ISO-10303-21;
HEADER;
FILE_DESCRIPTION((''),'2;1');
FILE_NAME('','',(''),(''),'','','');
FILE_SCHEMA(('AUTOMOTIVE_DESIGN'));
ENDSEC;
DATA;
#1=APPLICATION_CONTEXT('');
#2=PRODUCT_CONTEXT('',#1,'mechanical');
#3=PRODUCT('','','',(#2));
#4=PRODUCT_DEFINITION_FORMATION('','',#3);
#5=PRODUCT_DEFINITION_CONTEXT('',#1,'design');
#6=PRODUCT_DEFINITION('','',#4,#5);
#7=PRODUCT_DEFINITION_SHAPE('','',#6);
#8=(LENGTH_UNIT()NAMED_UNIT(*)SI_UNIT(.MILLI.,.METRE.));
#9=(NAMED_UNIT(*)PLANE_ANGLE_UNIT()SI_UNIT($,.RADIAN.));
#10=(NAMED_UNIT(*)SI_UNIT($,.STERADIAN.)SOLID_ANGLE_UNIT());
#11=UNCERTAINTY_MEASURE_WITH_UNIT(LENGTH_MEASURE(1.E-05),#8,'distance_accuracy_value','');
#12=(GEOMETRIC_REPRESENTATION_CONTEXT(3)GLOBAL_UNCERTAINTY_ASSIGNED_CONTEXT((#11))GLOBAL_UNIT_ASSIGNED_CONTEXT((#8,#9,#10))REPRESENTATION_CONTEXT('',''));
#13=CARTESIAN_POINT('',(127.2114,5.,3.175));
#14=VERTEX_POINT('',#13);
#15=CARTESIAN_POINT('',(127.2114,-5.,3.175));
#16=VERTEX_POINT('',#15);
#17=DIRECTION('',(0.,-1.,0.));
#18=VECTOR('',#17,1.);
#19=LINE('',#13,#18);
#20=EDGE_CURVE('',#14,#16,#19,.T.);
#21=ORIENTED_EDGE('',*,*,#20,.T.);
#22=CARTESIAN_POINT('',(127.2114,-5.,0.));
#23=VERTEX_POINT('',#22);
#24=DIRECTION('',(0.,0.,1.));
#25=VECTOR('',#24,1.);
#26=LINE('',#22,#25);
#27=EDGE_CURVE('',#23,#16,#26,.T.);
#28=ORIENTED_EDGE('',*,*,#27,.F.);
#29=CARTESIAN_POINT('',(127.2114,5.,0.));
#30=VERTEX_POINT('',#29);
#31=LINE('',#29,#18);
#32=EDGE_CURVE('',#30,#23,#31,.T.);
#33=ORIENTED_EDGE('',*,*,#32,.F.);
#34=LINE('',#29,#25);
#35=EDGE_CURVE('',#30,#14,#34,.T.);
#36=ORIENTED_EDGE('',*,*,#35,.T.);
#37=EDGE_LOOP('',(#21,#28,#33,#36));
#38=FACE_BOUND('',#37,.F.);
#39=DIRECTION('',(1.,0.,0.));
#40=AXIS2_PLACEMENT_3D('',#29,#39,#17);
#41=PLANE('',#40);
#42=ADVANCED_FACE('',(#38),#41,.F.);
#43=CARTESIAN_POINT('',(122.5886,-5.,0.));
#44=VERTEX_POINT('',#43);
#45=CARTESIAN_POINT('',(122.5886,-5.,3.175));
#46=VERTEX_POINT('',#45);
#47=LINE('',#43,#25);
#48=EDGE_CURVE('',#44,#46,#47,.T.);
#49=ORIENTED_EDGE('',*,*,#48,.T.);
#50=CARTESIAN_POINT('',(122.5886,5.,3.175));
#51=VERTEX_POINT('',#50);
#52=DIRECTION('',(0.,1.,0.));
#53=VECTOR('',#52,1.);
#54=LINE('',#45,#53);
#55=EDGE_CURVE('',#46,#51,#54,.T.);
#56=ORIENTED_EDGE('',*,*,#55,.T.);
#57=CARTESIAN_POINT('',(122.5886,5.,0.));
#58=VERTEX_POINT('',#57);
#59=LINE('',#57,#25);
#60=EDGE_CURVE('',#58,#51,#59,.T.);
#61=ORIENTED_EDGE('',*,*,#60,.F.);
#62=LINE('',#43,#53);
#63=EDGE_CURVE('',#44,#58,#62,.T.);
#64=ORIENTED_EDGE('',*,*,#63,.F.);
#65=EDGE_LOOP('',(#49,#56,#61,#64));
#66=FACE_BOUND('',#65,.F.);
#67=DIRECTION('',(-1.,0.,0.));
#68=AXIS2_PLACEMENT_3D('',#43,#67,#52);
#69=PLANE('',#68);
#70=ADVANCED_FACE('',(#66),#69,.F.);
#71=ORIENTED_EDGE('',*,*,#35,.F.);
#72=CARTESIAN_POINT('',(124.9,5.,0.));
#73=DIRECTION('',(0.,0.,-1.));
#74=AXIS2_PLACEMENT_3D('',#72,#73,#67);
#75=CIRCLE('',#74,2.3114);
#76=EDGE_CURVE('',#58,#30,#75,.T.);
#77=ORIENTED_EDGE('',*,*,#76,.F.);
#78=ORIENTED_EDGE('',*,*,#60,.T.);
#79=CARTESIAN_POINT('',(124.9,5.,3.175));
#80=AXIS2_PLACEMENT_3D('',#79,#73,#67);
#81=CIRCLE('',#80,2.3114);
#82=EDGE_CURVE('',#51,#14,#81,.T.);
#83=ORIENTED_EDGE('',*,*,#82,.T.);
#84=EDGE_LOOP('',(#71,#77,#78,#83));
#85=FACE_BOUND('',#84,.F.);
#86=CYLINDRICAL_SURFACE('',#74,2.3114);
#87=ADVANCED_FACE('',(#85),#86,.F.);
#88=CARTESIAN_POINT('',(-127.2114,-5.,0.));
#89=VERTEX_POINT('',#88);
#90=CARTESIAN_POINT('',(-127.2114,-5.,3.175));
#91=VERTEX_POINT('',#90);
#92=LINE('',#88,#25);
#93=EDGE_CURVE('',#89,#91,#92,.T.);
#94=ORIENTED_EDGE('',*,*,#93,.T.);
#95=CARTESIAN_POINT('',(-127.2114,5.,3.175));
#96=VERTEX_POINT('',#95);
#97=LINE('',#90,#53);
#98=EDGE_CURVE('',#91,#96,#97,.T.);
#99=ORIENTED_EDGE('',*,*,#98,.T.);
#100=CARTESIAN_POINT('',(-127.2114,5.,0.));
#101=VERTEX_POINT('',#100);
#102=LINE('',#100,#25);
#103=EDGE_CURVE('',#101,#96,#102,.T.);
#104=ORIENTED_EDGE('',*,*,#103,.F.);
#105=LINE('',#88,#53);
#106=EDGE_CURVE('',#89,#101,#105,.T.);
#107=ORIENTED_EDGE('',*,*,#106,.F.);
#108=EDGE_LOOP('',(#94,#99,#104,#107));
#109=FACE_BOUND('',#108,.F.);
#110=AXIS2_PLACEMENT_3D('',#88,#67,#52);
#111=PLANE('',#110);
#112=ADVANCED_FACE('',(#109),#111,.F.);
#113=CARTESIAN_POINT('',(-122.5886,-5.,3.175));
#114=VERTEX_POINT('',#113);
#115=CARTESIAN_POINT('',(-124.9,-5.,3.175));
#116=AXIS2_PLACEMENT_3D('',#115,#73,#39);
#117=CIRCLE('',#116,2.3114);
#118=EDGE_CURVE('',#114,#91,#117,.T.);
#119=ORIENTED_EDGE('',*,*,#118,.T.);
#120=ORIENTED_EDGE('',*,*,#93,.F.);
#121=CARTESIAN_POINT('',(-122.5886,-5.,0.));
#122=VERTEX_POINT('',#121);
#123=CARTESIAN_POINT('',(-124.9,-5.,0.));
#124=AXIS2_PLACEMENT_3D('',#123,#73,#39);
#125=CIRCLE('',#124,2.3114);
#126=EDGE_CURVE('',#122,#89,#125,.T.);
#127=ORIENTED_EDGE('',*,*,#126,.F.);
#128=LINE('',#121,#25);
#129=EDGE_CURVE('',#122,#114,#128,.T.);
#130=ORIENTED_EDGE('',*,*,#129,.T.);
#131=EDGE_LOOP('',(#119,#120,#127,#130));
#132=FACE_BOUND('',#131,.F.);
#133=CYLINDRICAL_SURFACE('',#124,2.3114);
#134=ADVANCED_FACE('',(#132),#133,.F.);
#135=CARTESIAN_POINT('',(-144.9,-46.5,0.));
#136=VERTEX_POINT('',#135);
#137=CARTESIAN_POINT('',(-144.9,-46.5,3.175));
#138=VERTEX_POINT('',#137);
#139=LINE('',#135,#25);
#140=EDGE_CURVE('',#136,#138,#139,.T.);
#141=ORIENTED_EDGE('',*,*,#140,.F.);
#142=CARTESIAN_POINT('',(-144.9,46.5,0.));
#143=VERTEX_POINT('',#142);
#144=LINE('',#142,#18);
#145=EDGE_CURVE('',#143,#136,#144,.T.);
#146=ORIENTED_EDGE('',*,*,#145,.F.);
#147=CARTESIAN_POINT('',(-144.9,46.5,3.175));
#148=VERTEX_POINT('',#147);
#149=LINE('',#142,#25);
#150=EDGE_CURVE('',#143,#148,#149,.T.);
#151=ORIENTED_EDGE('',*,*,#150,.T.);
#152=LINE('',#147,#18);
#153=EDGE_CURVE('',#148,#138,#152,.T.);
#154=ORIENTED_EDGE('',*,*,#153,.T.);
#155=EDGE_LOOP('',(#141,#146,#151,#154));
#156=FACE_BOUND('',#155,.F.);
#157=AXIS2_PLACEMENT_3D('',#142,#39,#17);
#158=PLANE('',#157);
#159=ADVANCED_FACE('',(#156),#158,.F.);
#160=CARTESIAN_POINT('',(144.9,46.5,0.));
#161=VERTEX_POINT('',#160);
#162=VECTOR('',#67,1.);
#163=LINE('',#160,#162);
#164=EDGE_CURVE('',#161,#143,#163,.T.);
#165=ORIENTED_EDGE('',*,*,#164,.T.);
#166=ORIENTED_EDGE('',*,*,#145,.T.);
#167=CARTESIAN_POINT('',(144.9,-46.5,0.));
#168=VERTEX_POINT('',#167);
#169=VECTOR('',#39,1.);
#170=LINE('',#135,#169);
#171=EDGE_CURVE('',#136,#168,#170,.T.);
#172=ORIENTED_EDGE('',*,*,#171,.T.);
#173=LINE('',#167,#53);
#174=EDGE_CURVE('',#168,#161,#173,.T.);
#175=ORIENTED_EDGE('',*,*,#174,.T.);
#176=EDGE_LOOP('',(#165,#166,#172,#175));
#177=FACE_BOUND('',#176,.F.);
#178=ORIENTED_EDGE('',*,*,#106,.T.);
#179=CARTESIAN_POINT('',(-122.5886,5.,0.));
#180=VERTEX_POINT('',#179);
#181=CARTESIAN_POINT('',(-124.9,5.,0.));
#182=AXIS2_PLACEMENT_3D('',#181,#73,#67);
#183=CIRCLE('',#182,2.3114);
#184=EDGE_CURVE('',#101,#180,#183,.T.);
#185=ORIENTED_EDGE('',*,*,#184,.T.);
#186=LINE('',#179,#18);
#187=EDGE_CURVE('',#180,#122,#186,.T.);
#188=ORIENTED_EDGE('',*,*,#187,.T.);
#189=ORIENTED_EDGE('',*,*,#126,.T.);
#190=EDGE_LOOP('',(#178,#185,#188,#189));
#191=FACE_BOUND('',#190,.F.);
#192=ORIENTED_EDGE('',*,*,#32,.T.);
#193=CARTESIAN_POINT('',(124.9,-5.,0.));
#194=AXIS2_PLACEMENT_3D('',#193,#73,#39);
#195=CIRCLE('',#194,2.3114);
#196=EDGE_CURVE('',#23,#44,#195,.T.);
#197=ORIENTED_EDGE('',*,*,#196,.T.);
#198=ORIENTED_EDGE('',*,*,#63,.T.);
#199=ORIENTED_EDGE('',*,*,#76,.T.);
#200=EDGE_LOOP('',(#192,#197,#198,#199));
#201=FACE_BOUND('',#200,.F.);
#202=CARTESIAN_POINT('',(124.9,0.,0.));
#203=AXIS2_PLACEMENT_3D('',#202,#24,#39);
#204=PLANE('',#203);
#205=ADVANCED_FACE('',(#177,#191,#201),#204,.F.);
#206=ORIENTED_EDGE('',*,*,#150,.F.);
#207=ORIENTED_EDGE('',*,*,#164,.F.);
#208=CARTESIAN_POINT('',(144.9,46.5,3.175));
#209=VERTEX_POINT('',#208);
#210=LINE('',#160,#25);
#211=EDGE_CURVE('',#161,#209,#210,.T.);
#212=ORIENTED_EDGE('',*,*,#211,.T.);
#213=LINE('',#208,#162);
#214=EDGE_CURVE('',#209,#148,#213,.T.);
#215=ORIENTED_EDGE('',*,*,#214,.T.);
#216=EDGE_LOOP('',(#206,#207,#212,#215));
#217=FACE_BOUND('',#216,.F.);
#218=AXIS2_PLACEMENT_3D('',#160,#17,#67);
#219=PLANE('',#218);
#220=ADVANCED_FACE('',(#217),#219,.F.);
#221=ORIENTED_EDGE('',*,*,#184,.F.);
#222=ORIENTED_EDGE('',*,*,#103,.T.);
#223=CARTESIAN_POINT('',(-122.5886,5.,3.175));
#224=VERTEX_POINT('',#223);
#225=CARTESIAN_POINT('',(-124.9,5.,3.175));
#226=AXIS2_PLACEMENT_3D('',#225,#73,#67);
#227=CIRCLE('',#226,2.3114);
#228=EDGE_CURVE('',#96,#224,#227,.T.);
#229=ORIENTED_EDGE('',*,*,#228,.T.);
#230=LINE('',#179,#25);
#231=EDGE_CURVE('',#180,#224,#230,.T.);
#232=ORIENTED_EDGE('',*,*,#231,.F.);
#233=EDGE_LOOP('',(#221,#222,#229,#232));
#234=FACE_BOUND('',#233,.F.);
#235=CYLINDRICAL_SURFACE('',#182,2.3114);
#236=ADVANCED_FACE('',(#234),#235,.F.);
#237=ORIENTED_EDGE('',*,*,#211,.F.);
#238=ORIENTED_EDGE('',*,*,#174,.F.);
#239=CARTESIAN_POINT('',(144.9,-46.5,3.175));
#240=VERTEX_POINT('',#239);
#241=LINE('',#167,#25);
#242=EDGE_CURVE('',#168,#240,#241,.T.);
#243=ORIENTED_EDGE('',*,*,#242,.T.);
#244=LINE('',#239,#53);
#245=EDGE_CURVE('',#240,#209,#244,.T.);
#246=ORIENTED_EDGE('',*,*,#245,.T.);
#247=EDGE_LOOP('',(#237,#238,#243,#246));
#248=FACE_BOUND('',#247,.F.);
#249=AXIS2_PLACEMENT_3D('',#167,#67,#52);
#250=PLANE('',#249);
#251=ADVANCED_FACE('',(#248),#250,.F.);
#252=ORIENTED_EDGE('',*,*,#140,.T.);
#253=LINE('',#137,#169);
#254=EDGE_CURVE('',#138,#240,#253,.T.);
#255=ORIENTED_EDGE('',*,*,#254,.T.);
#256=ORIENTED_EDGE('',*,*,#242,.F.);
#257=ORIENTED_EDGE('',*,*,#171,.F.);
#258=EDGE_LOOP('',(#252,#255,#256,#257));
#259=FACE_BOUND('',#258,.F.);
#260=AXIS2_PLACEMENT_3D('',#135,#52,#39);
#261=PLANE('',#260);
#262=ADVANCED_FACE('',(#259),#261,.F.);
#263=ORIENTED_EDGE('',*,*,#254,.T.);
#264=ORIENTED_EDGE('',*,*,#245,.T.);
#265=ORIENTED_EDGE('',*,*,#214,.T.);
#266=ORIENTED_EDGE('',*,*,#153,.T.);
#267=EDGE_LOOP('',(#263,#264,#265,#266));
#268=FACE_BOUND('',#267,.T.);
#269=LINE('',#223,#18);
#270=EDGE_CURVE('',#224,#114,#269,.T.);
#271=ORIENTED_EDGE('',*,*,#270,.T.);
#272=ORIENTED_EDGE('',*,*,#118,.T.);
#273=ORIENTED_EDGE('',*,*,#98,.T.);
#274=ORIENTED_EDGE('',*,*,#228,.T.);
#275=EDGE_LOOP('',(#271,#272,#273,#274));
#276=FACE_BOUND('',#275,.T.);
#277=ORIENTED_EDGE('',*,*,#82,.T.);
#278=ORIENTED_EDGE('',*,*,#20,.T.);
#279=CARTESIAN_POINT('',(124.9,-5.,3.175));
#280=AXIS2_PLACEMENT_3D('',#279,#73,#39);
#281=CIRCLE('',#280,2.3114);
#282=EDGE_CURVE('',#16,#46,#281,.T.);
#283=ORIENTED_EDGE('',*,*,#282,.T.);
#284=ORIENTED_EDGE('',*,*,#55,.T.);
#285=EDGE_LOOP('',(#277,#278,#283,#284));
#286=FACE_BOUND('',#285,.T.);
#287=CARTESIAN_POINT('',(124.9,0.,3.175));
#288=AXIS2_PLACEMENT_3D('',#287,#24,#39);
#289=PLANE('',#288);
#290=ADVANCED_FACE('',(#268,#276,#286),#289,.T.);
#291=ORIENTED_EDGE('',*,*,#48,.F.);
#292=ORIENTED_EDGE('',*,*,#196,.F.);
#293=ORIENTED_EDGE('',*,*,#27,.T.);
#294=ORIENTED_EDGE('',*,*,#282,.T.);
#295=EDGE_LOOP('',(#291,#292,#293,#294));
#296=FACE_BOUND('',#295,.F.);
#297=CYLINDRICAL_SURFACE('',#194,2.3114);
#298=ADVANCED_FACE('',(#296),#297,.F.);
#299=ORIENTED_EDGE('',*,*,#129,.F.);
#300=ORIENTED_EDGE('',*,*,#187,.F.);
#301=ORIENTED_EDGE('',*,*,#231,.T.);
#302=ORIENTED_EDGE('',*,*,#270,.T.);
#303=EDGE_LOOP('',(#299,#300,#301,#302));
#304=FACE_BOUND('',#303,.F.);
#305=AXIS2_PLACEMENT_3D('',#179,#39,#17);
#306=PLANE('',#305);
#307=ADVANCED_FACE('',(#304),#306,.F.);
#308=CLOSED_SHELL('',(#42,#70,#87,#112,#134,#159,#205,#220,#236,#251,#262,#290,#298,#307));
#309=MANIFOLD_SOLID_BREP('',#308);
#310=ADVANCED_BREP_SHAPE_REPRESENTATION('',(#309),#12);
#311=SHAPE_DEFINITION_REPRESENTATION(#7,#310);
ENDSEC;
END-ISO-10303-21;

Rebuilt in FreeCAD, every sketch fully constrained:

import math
import FreeCAD as App
import Part
import Sketcher

doc = App.newDocument("Part")
body = doc.addObject("PartDesign::Body", "Body")

sketch1 = body.newObject("Sketcher::SketchObject", "Sketch")
sketch1.AttachmentSupport = (doc.getObject("XY_Plane"), [""])
sketch1.MapMode = "FlatFace"
sketch1.addGeometry(Part.LineSegment(App.Vector(-144.9, -46.5, 0), App.Vector(144.9, -46.5, 0)), False)
sketch1.addGeometry(Part.LineSegment(App.Vector(144.9, -46.5, 0), App.Vector(144.9, 46.5, 0)), False)
sketch1.addGeometry(Part.LineSegment(App.Vector(144.9, 46.5, 0), App.Vector(-144.9, 46.5, 0)), False)
sketch1.addGeometry(Part.LineSegment(App.Vector(-144.9, 46.5, 0), App.Vector(-144.9, -46.5, 0)), False)
sketch1.addGeometry(Part.ArcOfCircle(Part.Circle(App.Vector(-124.9, -5, 0), App.Vector(0, 0, 1), 2.3), math.radians(180), math.radians(360)), False)
sketch1.addGeometry(Part.LineSegment(App.Vector(-127.2, -5, 0), App.Vector(-127.2, 5, 0)), False)
sketch1.addGeometry(Part.ArcOfCircle(Part.Circle(App.Vector(-124.9, 5, 0), App.Vector(0, 0, 1), 2.3), math.radians(0), math.radians(180)), False)
sketch1.addGeometry(Part.LineSegment(App.Vector(-122.6, 5, 0), App.Vector(-122.6, -5, 0)), False)
sketch1.addGeometry(Part.ArcOfCircle(Part.Circle(App.Vector(124.9, 5, 0), App.Vector(0, 0, 1), 2.3), math.radians(0), math.radians(180)), False)
sketch1.addGeometry(Part.LineSegment(App.Vector(127.2, 5, 0), App.Vector(127.2, -5, 0)), False)
sketch1.addGeometry(Part.ArcOfCircle(Part.Circle(App.Vector(124.9, -5, 0), App.Vector(0, 0, 1), 2.3), math.radians(180), math.radians(360)), False)
sketch1.addGeometry(Part.LineSegment(App.Vector(122.6, -5, 0), App.Vector(122.6, 5, 0)), False)
sketch1.addConstraint(Sketcher.Constraint("Coincident", 0, 2, 1, 1))
sketch1.addConstraint(Sketcher.Constraint("Coincident", 1, 2, 2, 1))
sketch1.addConstraint(Sketcher.Constraint("Coincident", 2, 2, 3, 1))
sketch1.addConstraint(Sketcher.Constraint("Coincident", 3, 2, 0, 1))
sketch1.addConstraint(Sketcher.Constraint("Tangent", 4, 1, 5, 1))
sketch1.addConstraint(Sketcher.Constraint("Tangent", 5, 2, 6, 2))
sketch1.addConstraint(Sketcher.Constraint("Tangent", 6, 1, 7, 1))
sketch1.addConstraint(Sketcher.Constraint("Tangent", 7, 2, 4, 2))
sketch1.addConstraint(Sketcher.Constraint("Tangent", 8, 1, 9, 1))
sketch1.addConstraint(Sketcher.Constraint("Tangent", 9, 2, 10, 2))
sketch1.addConstraint(Sketcher.Constraint("Tangent", 10, 1, 11, 1))
sketch1.addConstraint(Sketcher.Constraint("Tangent", 11, 2, 8, 2))
sketch1.addConstraint(Sketcher.Constraint("Horizontal", 0))
sketch1.addConstraint(Sketcher.Constraint("Vertical", 1))
sketch1.addConstraint(Sketcher.Constraint("Horizontal", 2))
sketch1.addConstraint(Sketcher.Constraint("Vertical", 3))
sketch1.addConstraint(Sketcher.Constraint("Vertical", 5))
sketch1.addConstraint(Sketcher.Constraint("Vertical", 7))
sketch1.addConstraint(Sketcher.Constraint("Vertical", 9))
sketch1.addConstraint(Sketcher.Constraint("Vertical", 11))
sketch1.addConstraint(Sketcher.Constraint("Equal", 6, 8))
sketch1.addConstraint(Sketcher.Constraint("Symmetric", 4, 3, 8, 3, -1, 1))
sketch1.addConstraint(Sketcher.Constraint("Symmetric", 0, 2, 2, 2, -1, 1))
sketch1.addConstraint(Sketcher.Constraint("Horizontal", 6, 3, 8, 3))
sketch1.addConstraint(Sketcher.Constraint("Horizontal", 4, 3, 10, 3))
sketch1.addConstraint(Sketcher.Constraint("DistanceY", 1, 1, 1, 2, 93.0))
sketch1.addConstraint(Sketcher.Constraint("DistanceY", 5, 1, 5, 2, 10.0))
sketch1.addConstraint(Sketcher.Constraint("DistanceX", 0, 1, 0, 2, 289.8))
sketch1.addConstraint(Sketcher.Constraint("DistanceX", 10, 3, 0, 2, 20.0))
sketch1.addConstraint(Sketcher.Constraint("Radius", 4, 2.3114))
pad1 = body.newObject("PartDesign::Pad", "Pad")
pad1.Profile = sketch1
pad1.Length = 3.175

doc.recompute()
